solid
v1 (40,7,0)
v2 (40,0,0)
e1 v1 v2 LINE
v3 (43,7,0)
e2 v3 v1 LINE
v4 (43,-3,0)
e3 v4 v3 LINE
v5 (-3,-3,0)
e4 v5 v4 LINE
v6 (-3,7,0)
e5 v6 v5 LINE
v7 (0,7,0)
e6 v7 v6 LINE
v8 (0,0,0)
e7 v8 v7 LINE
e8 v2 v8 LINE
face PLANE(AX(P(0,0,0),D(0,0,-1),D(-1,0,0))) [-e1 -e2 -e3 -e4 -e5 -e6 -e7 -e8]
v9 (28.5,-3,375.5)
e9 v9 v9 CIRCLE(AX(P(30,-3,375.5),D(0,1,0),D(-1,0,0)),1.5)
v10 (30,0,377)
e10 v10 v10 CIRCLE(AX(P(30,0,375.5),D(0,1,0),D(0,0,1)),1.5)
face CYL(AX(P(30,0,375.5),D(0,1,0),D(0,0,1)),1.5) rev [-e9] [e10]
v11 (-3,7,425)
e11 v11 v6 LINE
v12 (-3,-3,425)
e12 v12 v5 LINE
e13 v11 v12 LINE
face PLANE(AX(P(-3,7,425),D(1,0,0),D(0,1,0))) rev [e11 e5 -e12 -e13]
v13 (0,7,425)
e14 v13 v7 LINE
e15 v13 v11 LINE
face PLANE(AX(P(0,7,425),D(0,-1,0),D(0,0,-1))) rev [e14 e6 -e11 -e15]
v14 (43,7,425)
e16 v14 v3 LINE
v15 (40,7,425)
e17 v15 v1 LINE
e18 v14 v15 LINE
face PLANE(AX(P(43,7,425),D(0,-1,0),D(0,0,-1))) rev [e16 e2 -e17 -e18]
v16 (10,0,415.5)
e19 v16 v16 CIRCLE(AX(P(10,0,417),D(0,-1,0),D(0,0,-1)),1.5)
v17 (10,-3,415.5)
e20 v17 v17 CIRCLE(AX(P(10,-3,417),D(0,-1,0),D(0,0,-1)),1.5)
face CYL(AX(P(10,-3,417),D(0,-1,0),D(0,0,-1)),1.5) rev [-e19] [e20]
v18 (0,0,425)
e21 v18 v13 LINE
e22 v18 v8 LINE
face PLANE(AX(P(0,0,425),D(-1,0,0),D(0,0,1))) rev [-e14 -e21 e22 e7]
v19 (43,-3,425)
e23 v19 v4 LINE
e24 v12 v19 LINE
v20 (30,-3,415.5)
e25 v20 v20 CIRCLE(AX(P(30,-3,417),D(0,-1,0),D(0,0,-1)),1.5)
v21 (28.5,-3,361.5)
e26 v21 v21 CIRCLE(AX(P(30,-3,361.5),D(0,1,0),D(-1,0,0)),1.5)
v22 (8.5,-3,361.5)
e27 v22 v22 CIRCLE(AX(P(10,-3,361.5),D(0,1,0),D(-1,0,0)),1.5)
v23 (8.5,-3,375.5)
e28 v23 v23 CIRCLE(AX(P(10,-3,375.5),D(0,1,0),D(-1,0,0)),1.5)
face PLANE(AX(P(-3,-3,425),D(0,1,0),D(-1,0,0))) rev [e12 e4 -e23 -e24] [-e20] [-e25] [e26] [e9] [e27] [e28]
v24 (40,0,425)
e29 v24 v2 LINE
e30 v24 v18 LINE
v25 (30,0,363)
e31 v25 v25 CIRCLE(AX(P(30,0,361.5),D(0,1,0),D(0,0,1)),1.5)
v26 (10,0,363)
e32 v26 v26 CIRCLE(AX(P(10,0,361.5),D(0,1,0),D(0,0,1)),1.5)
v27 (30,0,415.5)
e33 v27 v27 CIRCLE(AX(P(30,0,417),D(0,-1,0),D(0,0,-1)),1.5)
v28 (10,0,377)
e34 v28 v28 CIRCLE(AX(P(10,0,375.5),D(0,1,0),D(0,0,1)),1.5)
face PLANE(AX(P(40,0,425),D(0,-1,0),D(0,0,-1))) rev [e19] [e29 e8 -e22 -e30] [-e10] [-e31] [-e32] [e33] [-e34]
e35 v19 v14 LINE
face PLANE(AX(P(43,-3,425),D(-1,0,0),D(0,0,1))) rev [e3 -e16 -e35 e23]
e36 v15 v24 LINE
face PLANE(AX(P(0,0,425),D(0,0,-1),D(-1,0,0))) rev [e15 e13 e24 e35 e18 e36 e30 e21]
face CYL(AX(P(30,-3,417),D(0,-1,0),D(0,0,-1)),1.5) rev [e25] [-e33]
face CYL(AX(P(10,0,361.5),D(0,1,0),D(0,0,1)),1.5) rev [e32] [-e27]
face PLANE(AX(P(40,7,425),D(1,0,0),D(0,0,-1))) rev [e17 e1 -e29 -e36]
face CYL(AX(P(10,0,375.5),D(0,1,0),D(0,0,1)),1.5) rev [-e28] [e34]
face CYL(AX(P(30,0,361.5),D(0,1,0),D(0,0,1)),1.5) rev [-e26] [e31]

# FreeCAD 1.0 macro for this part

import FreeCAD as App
import Part
import Sketcher


def add_polygon(sketch, points):
    """Adds a closed chain of lines whose ends are joined by coincident constraints."""
    first, n = sketch.GeometryCount, len(points)
    for a, b in zip(points, points[1:] + points[:1]):
        sketch.addGeometry(Part.LineSegment(App.Vector(*a, 0), App.Vector(*b, 0)), False)
    for i in range(n):
        sketch.addConstraint(Sketcher.Constraint("Coincident", first + i, 2, first + (i + 1) % n, 1))

doc = App.newDocument("Part")
body = doc.addObject("PartDesign::Body", "Body")

# Sketch on XY plane
sketch1 = doc.addObject("Sketcher::SketchObject", "Sketch")
body.addObject(sketch1)
sketch1.AttachmentSupport = (doc.XY_Plane, [""])
sketch1.MapMode = "FlatFace"
add_polygon(sketch1, [(0, 0), (0, 7), (-3, 7), (-3, -3), (43, -3), (43, 7), (40, 7), (40, 0)])  # lines 0-7
sketch1.addConstraint([
    Sketcher.Constraint("Vertical", 0),
    Sketcher.Constraint("Horizontal", 1),
    Sketcher.Constraint("Vertical", 2),
    Sketcher.Constraint("Horizontal", 3),
    Sketcher.Constraint("Vertical", 4),
    Sketcher.Constraint("Horizontal", 5),
    Sketcher.Constraint("Vertical", 6),
    Sketcher.Constraint("Horizontal", 7),
    Sketcher.Constraint("Coincident", 7, 2, -1, 1),
    Sketcher.Constraint("Horizontal", 1, 2, 4, 2),
    Sketcher.Constraint("Equal", 1, 5),
    Sketcher.Constraint("DistanceX", 1, 2, 1, 1, 3.0),
    Sketcher.Constraint("DistanceX", 3, 1, 3, 2, 46.0),
    Sketcher.Constraint("DistanceY", 0, 1, 0, 2, 7.0),
    Sketcher.Constraint("DistanceY", 2, 2, 2, 1, 10.0),
])
pad1 = doc.addObject("PartDesign::Pad", "Pad")
body.addObject(pad1)
pad1.Profile = sketch1
pad1.Length = 425

# Sketch on XZ plane
sketch2 = doc.addObject("Sketcher::SketchObject", "Sketch001")
body.addObject(sketch2)
sketch2.AttachmentSupport = (doc.XZ_Plane, [""])
sketch2.MapMode = "FlatFace"
sketch2.addGeometry([
    Part.Circle(App.Vector(10, 375.5, 0), App.Vector(0, 0, 1), 1.5),
    Part.Circle(App.Vector(30, 375.5, 0), App.Vector(0, 0, 1), 1.5),
    Part.Circle(App.Vector(30, 361.5, 0), App.Vector(0, 0, 1), 1.5),
    Part.Circle(App.Vector(10, 361.5, 0), App.Vector(0, 0, 1), 1.5),
], False)
sketch2.addConstraint([
    Sketcher.Constraint("Equal", 0, 1),
    Sketcher.Constraint("Equal", 1, 2),
    Sketcher.Constraint("Equal", 2, 3),
    Sketcher.Constraint("Horizontal", 0, 3, 1, 3),
    Sketcher.Constraint("Horizontal", 2, 3, 3, 3),
    Sketcher.Constraint("Vertical", 1, 3, 2, 3),
    Sketcher.Constraint("Vertical", 0, 3, 3, 3),
    Sketcher.Constraint("Diameter", 0, 3.0),
    Sketcher.Constraint("DistanceX", -1, 1, 0, 3, 10.0),
    Sketcher.Constraint("DistanceX", -1, 1, 1, 3, 30.0),
    Sketcher.Constraint("DistanceY", 2, 3, 1, 3, 14.0),
    Sketcher.Constraint("DistanceY", -1, 1, 0, 3, 375.5),
])
doc.recompute()
hole = doc.addObject("PartDesign::Hole", "Hole")
body.addObject(hole)
hole.Profile = sketch2
hole.ThreadType = "None"
hole.Diameter = 3
hole.DepthType = "Dimension"
hole.Depth = 15
hole.DrillPoint = "Angled"
hole.DrillPointAngle = 118
hole.Reversed = True

# Sketch on XZ plane
sketch3 = doc.addObject("Sketcher::SketchObject", "Sketch002")
body.addObject(sketch3)
sketch3.AttachmentSupport = (doc.XZ_Plane, [""])
sketch3.MapMode = "FlatFace"
sketch3.AttachmentOffset = App.Placement(App.Vector(0, 0, 3), App.Rotation())
sketch3.addGeometry([
    Part.Circle(App.Vector(30, 417, 0), App.Vector(0, 0, 1), 1.5),
    Part.Circle(App.Vector(10, 417, 0), App.Vector(0, 0, 1), 1.5),
], False)
sketch3.addConstraint([
    Sketcher.Constraint("Equal", 0, 1),
    Sketcher.Constraint("Horizontal", 0, 3, 1, 3),
    Sketcher.Constraint("Diameter", 0, 3.0),
    Sketcher.Constraint("DistanceX", -1, 1, 0, 3, 30.0),
    Sketcher.Constraint("DistanceY", -1, 1, 0, 3, 417.0),
    Sketcher.Constraint("DistanceX", -1, 1, 1, 3, 10.0),
])
doc.recompute()
hole2 = doc.addObject("PartDesign::Hole", "Hole001")
body.addObject(hole2)
hole2.Profile = sketch3
hole2.ThreadType = "None"
hole2.Diameter = 3
hole2.DepthType = "Dimension"
hole2.Depth = 15
hole2.DrillPoint = "Angled"
hole2.DrillPointAngle = 118

doc.recompute()
